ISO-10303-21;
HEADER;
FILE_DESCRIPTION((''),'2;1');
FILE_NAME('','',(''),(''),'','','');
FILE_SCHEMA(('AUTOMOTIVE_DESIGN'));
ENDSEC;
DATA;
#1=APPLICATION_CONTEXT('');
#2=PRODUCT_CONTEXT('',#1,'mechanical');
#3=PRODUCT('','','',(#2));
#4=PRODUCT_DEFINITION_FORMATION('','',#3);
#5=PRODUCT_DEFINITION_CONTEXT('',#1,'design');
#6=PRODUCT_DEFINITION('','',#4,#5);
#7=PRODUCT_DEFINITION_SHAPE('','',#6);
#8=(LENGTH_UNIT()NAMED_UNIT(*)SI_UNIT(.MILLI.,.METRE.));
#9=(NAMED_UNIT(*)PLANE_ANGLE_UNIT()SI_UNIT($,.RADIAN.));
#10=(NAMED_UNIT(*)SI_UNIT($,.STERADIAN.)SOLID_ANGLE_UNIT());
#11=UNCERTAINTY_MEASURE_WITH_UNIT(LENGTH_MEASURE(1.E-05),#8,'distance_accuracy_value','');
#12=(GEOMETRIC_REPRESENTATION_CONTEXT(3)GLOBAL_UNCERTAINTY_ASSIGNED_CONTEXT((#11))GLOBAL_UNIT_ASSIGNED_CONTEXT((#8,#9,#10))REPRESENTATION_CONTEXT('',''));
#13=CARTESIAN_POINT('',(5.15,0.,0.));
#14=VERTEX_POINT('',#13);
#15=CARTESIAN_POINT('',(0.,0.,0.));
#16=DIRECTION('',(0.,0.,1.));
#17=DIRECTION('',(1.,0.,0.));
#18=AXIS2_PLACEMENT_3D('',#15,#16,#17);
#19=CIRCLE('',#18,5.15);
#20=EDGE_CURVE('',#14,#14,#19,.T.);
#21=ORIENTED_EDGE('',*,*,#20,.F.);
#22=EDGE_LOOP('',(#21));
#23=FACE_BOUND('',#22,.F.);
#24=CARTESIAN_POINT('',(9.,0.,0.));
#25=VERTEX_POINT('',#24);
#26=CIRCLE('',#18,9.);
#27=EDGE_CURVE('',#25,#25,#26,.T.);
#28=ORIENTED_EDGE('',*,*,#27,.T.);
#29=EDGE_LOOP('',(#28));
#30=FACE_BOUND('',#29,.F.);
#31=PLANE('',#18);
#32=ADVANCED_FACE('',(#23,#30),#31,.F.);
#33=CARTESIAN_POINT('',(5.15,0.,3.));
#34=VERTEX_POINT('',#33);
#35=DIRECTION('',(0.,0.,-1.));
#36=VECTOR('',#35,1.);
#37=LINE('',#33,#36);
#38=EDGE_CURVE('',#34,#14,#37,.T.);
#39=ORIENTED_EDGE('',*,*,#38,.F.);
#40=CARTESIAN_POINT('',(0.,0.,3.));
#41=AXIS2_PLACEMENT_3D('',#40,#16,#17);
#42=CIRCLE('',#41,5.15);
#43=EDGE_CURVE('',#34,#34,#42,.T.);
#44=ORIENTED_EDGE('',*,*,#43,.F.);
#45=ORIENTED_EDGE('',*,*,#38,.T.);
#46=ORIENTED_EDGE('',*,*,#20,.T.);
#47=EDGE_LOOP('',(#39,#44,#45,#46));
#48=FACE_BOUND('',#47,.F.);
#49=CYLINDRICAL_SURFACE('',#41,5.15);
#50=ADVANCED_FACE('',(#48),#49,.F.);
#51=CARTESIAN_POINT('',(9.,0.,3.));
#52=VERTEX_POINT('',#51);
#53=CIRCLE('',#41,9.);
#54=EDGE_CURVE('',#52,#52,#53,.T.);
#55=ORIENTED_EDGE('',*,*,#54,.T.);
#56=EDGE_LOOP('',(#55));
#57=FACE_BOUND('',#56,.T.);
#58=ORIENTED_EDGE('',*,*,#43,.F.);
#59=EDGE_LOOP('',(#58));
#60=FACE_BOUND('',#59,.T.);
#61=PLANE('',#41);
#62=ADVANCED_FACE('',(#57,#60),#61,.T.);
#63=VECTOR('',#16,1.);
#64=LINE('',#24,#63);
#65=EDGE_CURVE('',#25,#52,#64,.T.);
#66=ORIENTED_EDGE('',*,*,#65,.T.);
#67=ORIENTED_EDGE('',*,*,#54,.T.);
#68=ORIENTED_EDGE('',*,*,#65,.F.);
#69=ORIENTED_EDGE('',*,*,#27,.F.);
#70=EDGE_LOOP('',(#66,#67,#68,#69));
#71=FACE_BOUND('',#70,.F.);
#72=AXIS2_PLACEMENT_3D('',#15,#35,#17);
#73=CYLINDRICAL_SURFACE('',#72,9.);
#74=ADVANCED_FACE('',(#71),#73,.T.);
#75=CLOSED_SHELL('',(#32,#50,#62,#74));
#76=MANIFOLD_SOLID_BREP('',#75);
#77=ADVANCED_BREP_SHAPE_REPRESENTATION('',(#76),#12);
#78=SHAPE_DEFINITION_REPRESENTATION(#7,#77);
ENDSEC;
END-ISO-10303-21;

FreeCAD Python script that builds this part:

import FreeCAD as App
import Part
import Sketcher
from FreeCAD import Vector

doc = App.newDocument("Part")
body = doc.addObject("PartDesign::Body", "Body")

# Sketch on XY plane
sketch1 = body.newObject("Sketcher::SketchObject", "Sketch")
sketch1.AttachmentSupport = (doc.getObject("XY_Plane"), [""])
sketch1.MapMode = "FlatFace"
sketch1.addGeometry(Part.Circle(Vector(0, 0, 0), Vector(0, 0, 1), 9), False)
sketch1.addConstraint([
    Sketcher.Constraint("Coincident", 0, 3, -1, 1),
    Sketcher.Constraint("Diameter", 0, 18.0),
])
pad1 = body.newObject("PartDesign::Pad", "Pad")
pad1.Profile = sketch1
pad1.Length = 3

# Sketch on XY plane
sketch2 = body.newObject("Sketcher::SketchObject", "Sketch001")
sketch2.AttachmentSupport = (doc.getObject("XY_Plane"), [""])
sketch2.MapMode = "FlatFace"
sketch2.AttachmentOffset = App.Placement(Vector(0, 0, 3), App.Rotation())
sketch2.addGeometry(Part.Circle(Vector(0, 0, 0), Vector(0, 0, 1), 5.15), False)
sketch2.addConstraint([
    Sketcher.Constraint("Coincident", 0, 3, -1, 1),
    Sketcher.Constraint("Diameter", 0, 10.3),
])
pocket1 = body.newObject("PartDesign::Pocket", "Pocket")
pocket1.Profile = sketch2
pocket1.Length = 5

doc.recompute()
